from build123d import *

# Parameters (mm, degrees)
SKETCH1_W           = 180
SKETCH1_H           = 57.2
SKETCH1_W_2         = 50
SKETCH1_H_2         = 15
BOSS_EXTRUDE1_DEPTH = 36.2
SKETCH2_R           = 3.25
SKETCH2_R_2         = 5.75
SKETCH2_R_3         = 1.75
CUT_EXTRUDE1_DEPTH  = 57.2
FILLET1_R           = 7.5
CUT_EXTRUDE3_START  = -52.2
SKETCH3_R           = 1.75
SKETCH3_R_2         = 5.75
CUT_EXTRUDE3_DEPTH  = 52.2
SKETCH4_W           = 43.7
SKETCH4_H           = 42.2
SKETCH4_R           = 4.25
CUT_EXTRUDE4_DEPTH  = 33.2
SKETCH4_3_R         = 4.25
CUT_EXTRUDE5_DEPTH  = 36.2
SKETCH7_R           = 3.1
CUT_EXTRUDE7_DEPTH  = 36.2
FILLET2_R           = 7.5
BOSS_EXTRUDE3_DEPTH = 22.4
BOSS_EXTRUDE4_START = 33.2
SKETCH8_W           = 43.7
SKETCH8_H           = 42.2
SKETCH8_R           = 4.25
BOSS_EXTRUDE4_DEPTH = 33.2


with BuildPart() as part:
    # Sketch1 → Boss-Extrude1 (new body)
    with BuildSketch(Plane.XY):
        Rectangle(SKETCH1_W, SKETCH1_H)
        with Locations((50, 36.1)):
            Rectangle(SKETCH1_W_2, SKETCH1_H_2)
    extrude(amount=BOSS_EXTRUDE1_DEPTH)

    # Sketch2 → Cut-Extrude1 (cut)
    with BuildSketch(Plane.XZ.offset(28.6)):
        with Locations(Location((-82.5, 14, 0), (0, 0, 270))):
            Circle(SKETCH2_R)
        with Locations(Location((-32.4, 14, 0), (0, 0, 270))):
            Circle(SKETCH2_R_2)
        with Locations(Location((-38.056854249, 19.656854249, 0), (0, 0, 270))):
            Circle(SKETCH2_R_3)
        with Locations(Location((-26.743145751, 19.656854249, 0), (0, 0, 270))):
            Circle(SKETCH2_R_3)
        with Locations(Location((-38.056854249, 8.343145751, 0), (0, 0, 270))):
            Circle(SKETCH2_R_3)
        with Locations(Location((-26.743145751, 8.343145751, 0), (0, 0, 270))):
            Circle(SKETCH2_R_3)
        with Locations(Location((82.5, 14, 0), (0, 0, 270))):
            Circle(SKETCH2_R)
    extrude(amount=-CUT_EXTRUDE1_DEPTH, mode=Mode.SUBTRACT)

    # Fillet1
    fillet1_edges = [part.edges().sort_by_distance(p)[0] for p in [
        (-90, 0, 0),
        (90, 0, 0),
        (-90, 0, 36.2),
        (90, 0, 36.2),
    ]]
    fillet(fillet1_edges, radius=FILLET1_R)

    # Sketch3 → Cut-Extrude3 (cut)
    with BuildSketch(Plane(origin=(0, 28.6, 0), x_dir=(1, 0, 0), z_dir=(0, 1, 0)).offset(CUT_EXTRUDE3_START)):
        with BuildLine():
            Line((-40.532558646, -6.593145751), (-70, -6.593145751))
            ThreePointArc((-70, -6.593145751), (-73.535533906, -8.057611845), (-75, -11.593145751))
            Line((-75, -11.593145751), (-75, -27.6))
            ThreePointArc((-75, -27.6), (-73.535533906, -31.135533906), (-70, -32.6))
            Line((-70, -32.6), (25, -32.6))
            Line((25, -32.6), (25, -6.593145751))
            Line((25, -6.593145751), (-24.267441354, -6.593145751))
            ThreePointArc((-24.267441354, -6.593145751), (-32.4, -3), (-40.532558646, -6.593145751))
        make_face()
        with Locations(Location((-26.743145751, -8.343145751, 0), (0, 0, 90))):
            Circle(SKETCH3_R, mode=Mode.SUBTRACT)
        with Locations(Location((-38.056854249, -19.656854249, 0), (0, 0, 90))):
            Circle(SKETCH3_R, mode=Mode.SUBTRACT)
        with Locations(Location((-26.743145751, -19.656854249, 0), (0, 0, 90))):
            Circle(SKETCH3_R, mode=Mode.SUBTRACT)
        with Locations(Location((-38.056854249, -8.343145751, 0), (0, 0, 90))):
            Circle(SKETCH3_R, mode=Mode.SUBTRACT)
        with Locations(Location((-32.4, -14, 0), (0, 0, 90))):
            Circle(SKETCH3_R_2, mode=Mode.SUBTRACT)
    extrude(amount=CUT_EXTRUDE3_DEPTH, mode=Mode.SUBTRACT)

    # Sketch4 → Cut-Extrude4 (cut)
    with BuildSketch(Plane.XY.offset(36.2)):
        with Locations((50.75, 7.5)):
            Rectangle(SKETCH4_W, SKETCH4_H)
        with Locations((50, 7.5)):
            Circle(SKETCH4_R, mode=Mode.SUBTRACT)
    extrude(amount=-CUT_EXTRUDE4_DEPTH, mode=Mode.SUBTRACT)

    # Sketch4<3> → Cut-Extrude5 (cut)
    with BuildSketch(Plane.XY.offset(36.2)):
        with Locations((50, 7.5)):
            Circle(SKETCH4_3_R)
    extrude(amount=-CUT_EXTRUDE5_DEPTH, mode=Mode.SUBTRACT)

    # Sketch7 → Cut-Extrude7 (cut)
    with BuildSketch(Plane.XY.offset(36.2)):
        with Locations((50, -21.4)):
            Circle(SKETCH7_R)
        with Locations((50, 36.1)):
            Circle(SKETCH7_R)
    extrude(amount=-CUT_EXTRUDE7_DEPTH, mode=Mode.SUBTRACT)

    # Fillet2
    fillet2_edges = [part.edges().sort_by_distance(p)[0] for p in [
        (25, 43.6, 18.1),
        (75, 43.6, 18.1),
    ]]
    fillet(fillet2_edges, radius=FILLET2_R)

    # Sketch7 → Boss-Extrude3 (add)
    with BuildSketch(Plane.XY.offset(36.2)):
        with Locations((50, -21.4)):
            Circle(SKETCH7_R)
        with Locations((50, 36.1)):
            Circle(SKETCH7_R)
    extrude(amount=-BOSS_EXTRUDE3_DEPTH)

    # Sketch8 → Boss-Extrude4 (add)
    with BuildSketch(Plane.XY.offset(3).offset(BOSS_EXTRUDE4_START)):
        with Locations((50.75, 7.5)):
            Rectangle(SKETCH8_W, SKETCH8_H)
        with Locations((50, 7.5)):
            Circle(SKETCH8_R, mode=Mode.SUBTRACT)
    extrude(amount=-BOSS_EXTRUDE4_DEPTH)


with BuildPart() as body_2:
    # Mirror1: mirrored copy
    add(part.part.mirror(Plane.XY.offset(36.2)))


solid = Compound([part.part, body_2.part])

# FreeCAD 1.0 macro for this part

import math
import FreeCAD as App
import Part
import Sketcher


def edges_at(feature, points):
    """Names of the edges that pass closest to the given points."""
    edges = feature.Shape.Edges
    near = lambda p: min(range(len(edges)), key=lambda i: edges[i].distToShape(Part.Vertex(*p))[0])
    return sorted({f"Edge{near(p) + 1}" for p in points})

doc = App.newDocument("Part")
params = doc.addObject("Spreadsheet::Sheet", "Params")
for row, (alias, value) in enumerate([
    ("sketch1_width", "180 mm"),
    ("sketch1_width2", "15 mm"),
    ("sketch1_width3", "50 mm"),
    ("sketch1_height", "57.2 mm"),
    ("pad1_length", "36.2 mm"),
    ("sketch2_diameter", "6.5 mm"),
    ("sketch2_diameter2", "11.5 mm"),
    ("sketch2_diameter3", "3.5 mm"),
    ("pocket1_length", "57.2 mm"),
    ("fillet_radius", "7.5 mm"),
    ("sketch3_radius", "5 mm"),
    ("sketch3_radius2", "11 mm"),
    ("sketch3_diameter", "3.5 mm"),
    ("sketch3_diameter2", "11.5 mm"),
    ("sketch3_width", "95 mm"),
    ("pocket2_length", "52.2 mm"),
    ("sketch4_diameter", "8.5 mm"),
    ("sketch4_width", "43.7 mm"),
    ("sketch4_height", "42.2 mm"),
    ("pocket3_length", "33.2 mm"),
    ("sketch5_diameter", "8.5 mm"),
    ("pocket4_length", "36.2 mm"),
    ("sketch6_diameter", "6.2 mm"),
    ("pocket5_length", "36.2 mm"),
    ("fillet2_radius", "7.5 mm"),
    ("sketch7_diameter", "6.2 mm"),
    ("pad2_length", "22.4 mm"),
    ("sketch8_diameter", "8.5 mm"),
    ("sketch8_width", "43.7 mm"),
    ("sketch8_height", "42.2 mm"),
    ("pad3_length", "33.2 mm"),
], start=1):
    params.set(f"A{row}", alias)
    params.set(f"B{row}", "=" + value)
    params.setAlias(f"B{row}", alias)

body = doc.addObject("PartDesign::Body", "Body")

# Sketch on XY plane
sketch1 = body.newObject("Sketcher::SketchObject", "Sketch")
sketch1.AttachmentSupport = (doc.getObject("XY_Plane"), [""])
sketch1.MapMode = "FlatFace"
sketch1.addGeometry([
    Part.LineSegment(App.Vector(-90, 29, 0), App.Vector(-90, -29, 0)),  # 0
    Part.LineSegment(App.Vector(-90, -29, 0), App.Vector(90, -29, 0)),  # 1
    Part.LineSegment(App.Vector(90, -29, 0), App.Vector(90, 29, 0)),  # 2
    Part.LineSegment(App.Vector(90, 29, 0), App.Vector(75, 29, 0)),  # 3
    Part.LineSegment(App.Vector(75, 29, 0), App.Vector(75, 44, 0)),  # 4
    Part.LineSegment(App.Vector(75, 44, 0), App.Vector(25, 44, 0)),  # 5
    Part.LineSegment(App.Vector(25, 44, 0), App.Vector(25, 29, 0)),  # 6
    Part.LineSegment(App.Vector(25, 29, 0), App.Vector(-90, 29, 0)),  # 7
], False)
sketch1.addConstraint([
    Sketcher.Constraint("Coincident", 0, 2, 1, 1),
    Sketcher.Constraint("Coincident", 1, 2, 2, 1),
    Sketcher.Constraint("Coincident", 2, 2, 3, 1),
    Sketcher.Constraint("Coincident", 3, 2, 4, 1),
    Sketcher.Constraint("Coincident", 4, 2, 5, 1),
    Sketcher.Constraint("Coincident", 5, 2, 6, 1),
    Sketcher.Constraint("Coincident", 6, 2, 7, 1),
    Sketcher.Constraint("Coincident", 7, 2, 0, 1),
    Sketcher.Constraint("Vertical", 0),
    Sketcher.Constraint("Horizontal", 1),
    Sketcher.Constraint("Vertical", 2),
    Sketcher.Constraint("Horizontal", 3),
    Sketcher.Constraint("Vertical", 4),
    Sketcher.Constraint("Horizontal", 5),
    Sketcher.Constraint("Vertical", 6),
    Sketcher.Constraint("Horizontal", 7),
    Sketcher.Constraint("Symmetric", 0, 2, 2, 2, -1, 1),
    Sketcher.Constraint("Horizontal", 3, 2, 6, 2),
    Sketcher.Constraint("Equal", 3, 4),
    Sketcher.Constraint("DistanceX", 1, 1, 1, 2, 180.0),
    Sketcher.Constraint("DistanceX", 3, 2, 3, 1, 15.0),
    Sketcher.Constraint("DistanceX", 5, 2, 5, 1, 50.0),
    Sketcher.Constraint("DistanceY", 0, 2, 0, 1, 57.2),
])
sketch1.setExpression("Constraints[19]", "Params.sketch1_width")
sketch1.setExpression("Constraints[20]", "Params.sketch1_width2")
sketch1.setExpression("Constraints[21]", "Params.sketch1_width3")
sketch1.setExpression("Constraints[22]", "Params.sketch1_height")
pad1 = body.newObject("PartDesign::Pad", "Pad")
pad1.Profile = sketch1
pad1.setExpression("Length", "Params.pad1_length")

# Sketch on XZ plane
sketch2 = body.newObject("Sketcher::SketchObject", "Sketch001")
sketch2.AttachmentSupport = (doc.getObject("XZ_Plane"), [""])
sketch2.MapMode = "FlatFace"
sketch2.AttachmentOffset = App.Placement(App.Vector(0, 0, 28.6), App.Rotation())
sketch2.addGeometry([
    Part.Circle(App.Vector(-82.5, 14, 0), App.Vector(0, 0, 1), 3.2),  # 0
    Part.Circle(App.Vector(-32.4, 14, 0), App.Vector(0, 0, 1), 5.8),  # 1
    Part.Circle(App.Vector(-38.1, 19.7, 0), App.Vector(0, 0, 1), 1.8),  # 2
    Part.Circle(App.Vector(-26.7, 19.7, 0), App.Vector(0, 0, 1), 1.8),  # 3
    Part.Circle(App.Vector(-38.1, 8.3, 0), App.Vector(0, 0, 1), 1.8),  # 4
    Part.Circle(App.Vector(-26.7, 8.3, 0), App.Vector(0, 0, 1), 1.8),  # 5
    Part.Circle(App.Vector(82.5, 14, 0), App.Vector(0, 0, 1), 3.2),  # 6
], False)
sketch2.addConstraint([
    Sketcher.Constraint("Equal", 2, 3),
    Sketcher.Constraint("Equal", 3, 4),
    Sketcher.Constraint("Equal", 4, 5),
    Sketcher.Constraint("Equal", 0, 6),
    Sketcher.Constraint("Symmetric", 0, 3, 6, 3, -2),
    Sketcher.Constraint("Horizontal", 0, 3, 1, 3),
    Sketcher.Constraint("Horizontal", 2, 3, 3, 3),
    Sketcher.Constraint("Horizontal", 4, 3, 5, 3),
    Sketcher.Constraint("Vertical", 2, 3, 4, 3),
    Sketcher.Constraint("Vertical", 3, 3, 5, 3),
    Sketcher.Constraint("Diameter", 0, 6.5),
    Sketcher.Constraint("Diameter", 1, 11.5),
    Sketcher.Constraint("Diameter", 2, 3.5),
    Sketcher.Constraint("DistanceY", -1, 1, 0, 3, 14.0),
    Sketcher.Constraint("DistanceX", 0, 3, -1, 1, 82.5),
    Sketcher.Constraint("DistanceX", 1, 3, -1, 1, 32.4),
    Sketcher.Constraint("DistanceX", 2, 3, 3, 3, 11.313708),
    Sketcher.Constraint("DistanceY", 4, 3, 2, 3, 11.313708),
    Sketcher.Constraint("DistanceX", 2, 3, -1, 1, 38.056854),
    Sketcher.Constraint("DistanceY", -1, 1, 2, 3, 19.656854),
])
sketch2.setExpression("Constraints[10]", "Params.sketch2_diameter")
sketch2.setExpression("Constraints[11]", "Params.sketch2_diameter2")
sketch2.setExpression("Constraints[12]", "Params.sketch2_diameter3")
pocket1 = body.newObject("PartDesign::Pocket", "Pocket")
pocket1.Profile = sketch2
pocket1.setExpression("Length", "Params.pocket1_length")
doc.recompute()

fillet = body.newObject("PartDesign::Fillet", "Fillet")
fillet.Base = (pocket1, edges_at(pocket1, [
    (-90, 0, 0),
    (90, 0, 0),
    (-90, 0, 36.2),
    (90, 0, 36.2),
]))
fillet.setExpression("Radius", "Params.fillet_radius")

# Sketch on XZ plane
sketch3 = body.newObject("Sketcher::SketchObject", "Sketch002")
sketch3.AttachmentSupport = (doc.getObject("XZ_Plane"), [""])
sketch3.MapMode = "FlatFace"
sketch3.AttachmentOffset = App.Placement(App.Vector(0, 0, 23.6), App.Rotation())
sketch3.addGeometry([
    Part.LineSegment(App.Vector(-40.5, 6.6, 0), App.Vector(-70, 6.6, 0)),  # 0
    Part.ArcOfCircle(Part.Circle(App.Vector(-70, 11.6, 0), App.Vector(0, 0, 1), 5), math.radians(180), math.radians(270)),  # 1
    Part.LineSegment(App.Vector(-75, 11.6, 0), App.Vector(-75, 27.6, 0)),  # 2
    Part.ArcOfCircle(Part.Circle(App.Vector(-70, 27.6, 0), App.Vector(0, 0, 1), 5), math.radians(90), math.radians(180)),  # 3
    Part.LineSegment(App.Vector(-70, 32.6, 0), App.Vector(25, 32.6, 0)),  # 4
    Part.LineSegment(App.Vector(25, 32.6, 0), App.Vector(25, 6.6, 0)),  # 5
    Part.LineSegment(App.Vector(25, 6.6, 0), App.Vector(-24.3, 6.6, 0)),  # 6
    Part.ArcOfCircle(Part.Circle(App.Vector(-32.4, 14, 0), App.Vector(0, 0, 1), 11), math.radians(-138), math.radians(-42)),  # 7
    Part.Circle(App.Vector(-38.1, 19.7, 0), App.Vector(0, 0, 1), 1.8),  # 8
    Part.Circle(App.Vector(-26.7, 19.7, 0), App.Vector(0, 0, 1), 1.8),  # 9
    Part.Circle(App.Vector(-32.4, 14, 0), App.Vector(0, 0, 1), 5.8),  # 10
    Part.Circle(App.Vector(-38.1, 8.3, 0), App.Vector(0, 0, 1), 1.8),  # 11
    Part.Circle(App.Vector(-26.7, 8.3, 0), App.Vector(0, 0, 1), 1.8),  # 12
], False)
sketch3.addConstraint([
    Sketcher.Constraint("Tangent", 0, 2, 1, 2),
    Sketcher.Constraint("Tangent", 1, 1, 2, 1),
    Sketcher.Constraint("Tangent", 2, 2, 3, 2),
    Sketcher.Constraint("Tangent", 3, 1, 4, 1),
    Sketcher.Constraint("Coincident", 4, 2, 5, 1),
    Sketcher.Constraint("Coincident", 5, 2, 6, 1),
    Sketcher.Constraint("Coincident", 6, 2, 7, 2),
    Sketcher.Constraint("Coincident", 7, 1, 0, 1),
    Sketcher.Constraint("Horizontal", 0),
    Sketcher.Constraint("Vertical", 2),
    Sketcher.Constraint("Horizontal", 4),
    Sketcher.Constraint("Vertical", 5),
    Sketcher.Constraint("Horizontal", 6),
    Sketcher.Constraint("Coincident", 10, 3, 7, 3),
    Sketcher.Constraint("Equal", 1, 3),
    Sketcher.Constraint("Equal", 8, 9),
    Sketcher.Constraint("Equal", 9, 11),
    Sketcher.Constraint("Equal", 11, 12),
    Sketcher.Constraint("Horizontal", 8, 3, 9, 3),
    Sketcher.Constraint("Horizontal", 11, 3, 12, 3),
    Sketcher.Constraint("Horizontal", 0, 2, 5, 2),
    Sketcher.Constraint("Vertical", 8, 3, 11, 3),
    Sketcher.Constraint("Vertical", 9, 3, 12, 3),
    Sketcher.Constraint("Radius", 1, 5.0),
    Sketcher.Constraint("Radius", 7, 11.0),
    Sketcher.Constraint("Diameter", 8, 3.5),
    Sketcher.Constraint("Diameter", 10, 11.5),
    Sketcher.Constraint("DistanceX", 4, 1, 4, 2, 95.0),
    Sketcher.Constraint("DistanceX", 1, 3, -1, 1, 70.0),
    Sketcher.Constraint("DistanceY", -1, 1, 7, 3, 14.0),
    Sketcher.Constraint("DistanceY", -1, 1, 3, 3, 27.6),
    Sketcher.Constraint("DistanceX", 7, 3, -1, 1, 32.4),
    Sketcher.Constraint("DistanceY", 11, 3, 1, 3, 3.25),
    Sketcher.Constraint("DistanceX", 0, 2, 0, 1, 29.467441),
    Sketcher.Constraint("DistanceY", 1, 3, 8, 3, 8.063708),
    Sketcher.Constraint("DistanceX", 8, 3, 9, 3, 11.313708),
    Sketcher.Constraint("DistanceX", 8, 3, -1, 1, 38.056854),
])
sketch3.setExpression("Constraints[23]", "Params.sketch3_radius")
sketch3.setExpression("Constraints[24]", "Params.sketch3_radius2")
sketch3.setExpression("Constraints[25]", "Params.sketch3_diameter")
sketch3.setExpression("Constraints[26]", "Params.sketch3_diameter2")
sketch3.setExpression("Constraints[27]", "Params.sketch3_width")
pocket2 = body.newObject("PartDesign::Pocket", "Pocket001")
pocket2.Profile = sketch3
pocket2.setExpression("Length", "Params.pocket2_length")

# Sketch on XY plane
sketch4 = body.newObject("Sketcher::SketchObject", "Sketch003")
sketch4.AttachmentSupport = (doc.getObject("XY_Plane"), [""])
sketch4.MapMode = "FlatFace"
sketch4.AttachmentOffset = App.Placement(App.Vector(0, 0, 36.2), App.Rotation())
sketch4.addGeometry([
    Part.LineSegment(App.Vector(28.9, 28.6, 0), App.Vector(28.9, -13.6, 0)),  # 0
    Part.LineSegment(App.Vector(28.9, -13.6, 0), App.Vector(72.6, -13.6, 0)),  # 1
    Part.LineSegment(App.Vector(72.6, -13.6, 0), App.Vector(72.6, 28.6, 0)),  # 2
    Part.LineSegment(App.Vector(72.6, 28.6, 0), App.Vector(28.9, 28.6, 0)),  # 3
    Part.Circle(App.Vector(50, 7.5, 0), App.Vector(0, 0, 1), 4.2),  # 4
], False)
sketch4.addConstraint([
    Sketcher.Constraint("Coincident", 0, 2, 1, 1),
    Sketcher.Constraint("Coincident", 1, 2, 2, 1),
    Sketcher.Constraint("Coincident", 2, 2, 3, 1),
    Sketcher.Constraint("Coincident", 3, 2, 0, 1),
    Sketcher.Constraint("Vertical", 0),
    Sketcher.Constraint("Horizontal", 1),
    Sketcher.Constraint("Vertical", 2),
    Sketcher.Constraint("Horizontal", 3),
    Sketcher.Constraint("Diameter", 4, 8.5),
    Sketcher.Constraint("DistanceX", 1, 1, 1, 2, 43.7),
    Sketcher.Constraint("DistanceY", 0, 2, 0, 1, 42.2),
    Sketcher.Constraint("DistanceX", -1, 1, 4, 3, 50.0),
    Sketcher.Constraint("DistanceY", -1, 1, 4, 3, 7.5),
    Sketcher.Constraint("DistanceX", -1, 1, 0, 2, 28.9),
    Sketcher.Constraint("DistanceY", 0, 2, -1, 1, 13.6),
])
sketch4.setExpression("Constraints[8]", "Params.sketch4_diameter")
sketch4.setExpression("Constraints[9]", "Params.sketch4_width")
sketch4.setExpression("Constraints[10]", "Params.sketch4_height")
pocket3 = body.newObject("PartDesign::Pocket", "Pocket002")
pocket3.Profile = sketch4
pocket3.setExpression("Length", "Params.pocket3_length")

# Sketch on XY plane
sketch5 = body.newObject("Sketcher::SketchObject", "Sketch004")
sketch5.AttachmentSupport = (doc.getObject("XY_Plane"), [""])
sketch5.MapMode = "FlatFace"
sketch5.AttachmentOffset = App.Placement(App.Vector(0, 0, 36.2), App.Rotation())
sketch5.addGeometry(Part.Circle(App.Vector(50, 7.5, 0), App.Vector(0, 0, 1), 4.2), False)
sketch5.addConstraint([
    Sketcher.Constraint("Diameter", 0, 8.5),
    Sketcher.Constraint("DistanceX", -1, 1, 0, 3, 50.0),
    Sketcher.Constraint("DistanceY", -1, 1, 0, 3, 7.5),
])
sketch5.setExpression("Constraints[0]", "Params.sketch5_diameter")
pocket4 = body.newObject("PartDesign::Pocket", "Pocket003")
pocket4.Profile = sketch5
pocket4.setExpression("Length", "Params.pocket4_length")

# Sketch on XY plane
sketch6 = body.newObject("Sketcher::SketchObject", "Sketch005")
sketch6.AttachmentSupport = (doc.getObject("XY_Plane"), [""])
sketch6.MapMode = "FlatFace"
sketch6.AttachmentOffset = App.Placement(App.Vector(0, 0, 36.2), App.Rotation())
sketch6.addGeometry([
    Part.Circle(App.Vector(50, -21.4, 0), App.Vector(0, 0, 1), 3.1),
    Part.Circle(App.Vector(50, 36.1, 0), App.Vector(0, 0, 1), 3.1),
], False)
sketch6.addConstraint([
    Sketcher.Constraint("Equal", 0, 1),
    Sketcher.Constraint("Vertical", 0, 3, 1, 3),
    Sketcher.Constraint("Diameter", 0, 6.2),
    Sketcher.Constraint("DistanceX", -1, 1, 0, 3, 50.0),
    Sketcher.Constraint("DistanceY", 0, 3, -1, 1, 21.4),
    Sketcher.Constraint("DistanceY", -1, 1, 1, 3, 36.1),
])
sketch6.setExpression("Constraints[2]", "Params.sketch6_diameter")
pocket5 = body.newObject("PartDesign::Pocket", "Pocket004")
pocket5.Profile = sketch6
pocket5.setExpression("Length", "Params.pocket5_length")
doc.recompute()

fillet2 = body.newObject("PartDesign::Fillet", "Fillet001")
fillet2.Base = (pocket5, edges_at(pocket5, [(25, 43.6, 18.1), (75, 43.6, 18.1)]))
fillet2.setExpression("Radius", "Params.fillet2_radius")

# Sketch on XY plane
sketch7 = body.newObject("Sketcher::SketchObject", "Sketch006")
sketch7.AttachmentSupport = (doc.getObject("XY_Plane"), [""])
sketch7.MapMode = "FlatFace"
sketch7.AttachmentOffset = App.Placement(App.Vector(0, 0, 36.2), App.Rotation())
sketch7.addGeometry([
    Part.Circle(App.Vector(50, -21.4, 0), App.Vector(0, 0, 1), 3.1),
    Part.Circle(App.Vector(50, 36.1, 0), App.Vector(0, 0, 1), 3.1),
], False)
sketch7.addConstraint([
    Sketcher.Constraint("Equal", 0, 1),
    Sketcher.Constraint("Vertical", 0, 3, 1, 3),
    Sketcher.Constraint("Diameter", 0, 6.2),
    Sketcher.Constraint("DistanceX", -1, 1, 0, 3, 50.0),
    Sketcher.Constraint("DistanceY", 0, 3, -1, 1, 21.4),
    Sketcher.Constraint("DistanceY", -1, 1, 1, 3, 36.1),
])
sketch7.setExpression("Constraints[2]", "Params.sketch7_diameter")
pad2 = body.newObject("PartDesign::Pad", "Pad001")
pad2.Profile = sketch7
pad2.setExpression("Length", "Params.pad2_length")
pad2.Reversed = True

# Sketch on XY plane
sketch8 = body.newObject("Sketcher::SketchObject", "Sketch007")
sketch8.AttachmentSupport = (doc.getObject("XY_Plane"), [""])
sketch8.MapMode = "FlatFace"
sketch8.AttachmentOffset = App.Placement(App.Vector(0, 0, 36.2), App.Rotation())
sketch8.addGeometry([
    Part.LineSegment(App.Vector(28.9, 28.6, 0), App.Vector(28.9, -13.6, 0)),  # 0
    Part.LineSegment(App.Vector(28.9, -13.6, 0), App.Vector(72.6, -13.6, 0)),  # 1
    Part.LineSegment(App.Vector(72.6, -13.6, 0), App.Vector(72.6, 28.6, 0)),  # 2
    Part.LineSegment(App.Vector(72.6, 28.6, 0), App.Vector(28.9, 28.6, 0)),  # 3
    Part.Circle(App.Vector(50, 7.5, 0), App.Vector(0, 0, 1), 4.2),  # 4
], False)
sketch8.addConstraint([
    Sketcher.Constraint("Coincident", 0, 2, 1, 1),
    Sketcher.Constraint("Coincident", 1, 2, 2, 1),
    Sketcher.Constraint("Coincident", 2, 2, 3, 1),
    Sketcher.Constraint("Coincident", 3, 2, 0, 1),
    Sketcher.Constraint("Vertical", 0),
    Sketcher.Constraint("Horizontal", 1),
    Sketcher.Constraint("Vertical", 2),
    Sketcher.Constraint("Horizontal", 3),
    Sketcher.Constraint("Diameter", 4, 8.5),
    Sketcher.Constraint("DistanceX", 1, 1, 1, 2, 43.7),
    Sketcher.Constraint("DistanceY", 0, 2, 0, 1, 42.2),
    Sketcher.Constraint("DistanceX", -1, 1, 4, 3, 50.0),
    Sketcher.Constraint("DistanceY", -1, 1, 4, 3, 7.5),
    Sketcher.Constraint("DistanceX", -1, 1, 0, 2, 28.9),
    Sketcher.Constraint("DistanceY", 0, 2, -1, 1, 13.6),
])
sketch8.setExpression("Constraints[8]", "Params.sketch8_diameter")
sketch8.setExpression("Constraints[9]", "Params.sketch8_width")
sketch8.setExpression("Constraints[10]", "Params.sketch8_height")
pad3 = body.newObject("PartDesign::Pad", "Pad002")
pad3.Profile = sketch8
pad3.setExpression("Length", "Params.pad3_length")
pad3.Reversed = True
body2 = doc.addObject("PartDesign::Body", "Body001")
doc.recompute()

mirroring = doc.addObject("Part::Mirroring", "Mirroring")
mirroring.Source = body
mirroring.Base = App.Vector(0, 0, 36.2)
mirroring.Normal = App.Vector(0, 0, 1)
body2.BaseFeature = mirroring
doc.recompute()
mirroring.Visibility = False

doc.recompute()
